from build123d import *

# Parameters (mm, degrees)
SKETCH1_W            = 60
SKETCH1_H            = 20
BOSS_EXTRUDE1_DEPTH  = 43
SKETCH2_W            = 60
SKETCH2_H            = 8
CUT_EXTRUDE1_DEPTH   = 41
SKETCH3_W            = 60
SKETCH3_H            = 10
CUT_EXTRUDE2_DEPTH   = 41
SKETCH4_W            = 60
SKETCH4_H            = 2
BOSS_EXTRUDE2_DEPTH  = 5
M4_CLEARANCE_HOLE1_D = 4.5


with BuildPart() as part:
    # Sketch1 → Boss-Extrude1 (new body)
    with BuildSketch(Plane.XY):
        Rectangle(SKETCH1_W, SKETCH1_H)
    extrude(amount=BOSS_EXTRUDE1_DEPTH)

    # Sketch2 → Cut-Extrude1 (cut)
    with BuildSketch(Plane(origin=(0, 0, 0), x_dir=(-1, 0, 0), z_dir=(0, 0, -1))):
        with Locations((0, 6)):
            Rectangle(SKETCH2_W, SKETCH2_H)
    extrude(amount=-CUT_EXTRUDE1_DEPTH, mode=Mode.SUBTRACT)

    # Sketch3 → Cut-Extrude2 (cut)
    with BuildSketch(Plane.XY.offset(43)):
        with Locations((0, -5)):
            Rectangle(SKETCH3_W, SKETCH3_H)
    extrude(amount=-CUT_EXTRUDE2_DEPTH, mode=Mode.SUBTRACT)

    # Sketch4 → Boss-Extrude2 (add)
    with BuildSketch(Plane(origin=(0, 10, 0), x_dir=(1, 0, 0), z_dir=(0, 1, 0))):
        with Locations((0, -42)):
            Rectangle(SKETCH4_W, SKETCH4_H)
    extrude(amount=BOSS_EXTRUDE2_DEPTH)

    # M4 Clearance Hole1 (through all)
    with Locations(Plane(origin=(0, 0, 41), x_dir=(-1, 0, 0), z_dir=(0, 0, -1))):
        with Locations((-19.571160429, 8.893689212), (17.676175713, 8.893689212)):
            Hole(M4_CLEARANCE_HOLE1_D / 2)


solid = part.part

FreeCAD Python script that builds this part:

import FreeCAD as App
import Part
import Sketcher
from FreeCAD import Vector
Q = App.Units.Quantity

doc = App.newDocument("Part")
body = doc.addObject("PartDesign::Body", "Body")

sketch1 = body.newObject("Sketcher::SketchObject", "Sketch")
sketch1.AttachmentSupport = (doc.getObject("XY_Plane"), [""])
sketch1.MapMode = "FlatFace"
sketch1.addGeometry([
    Part.LineSegment(Vector(-30, 10, 0), Vector(-30, -10, 0)),
    Part.LineSegment(Vector(-30, -10, 0), Vector(30, -10, 0)),
    Part.LineSegment(Vector(30, -10, 0), Vector(30, 10, 0)),
    Part.LineSegment(Vector(30, 10, 0), Vector(-30, 10, 0)),
], False)
sketch1.addConstraint([
    Sketcher.Constraint("Coincident", 0, 2, 1, 1),
    Sketcher.Constraint("Coincident", 1, 2, 2, 1),
    Sketcher.Constraint("Coincident", 2, 2, 3, 1),
    Sketcher.Constraint("Coincident", 3, 2, 0, 1),
    Sketcher.Constraint("Vertical", 0),
    Sketcher.Constraint("Horizontal", 1),
    Sketcher.Constraint("Vertical", 2),
    Sketcher.Constraint("Horizontal", 3),
    Sketcher.Constraint("Symmetric", 0, 2, 2, 2, -1, 1),
    Sketcher.Constraint("DistanceX", 1, 1, 1, 2, Q("60 mm")),
    Sketcher.Constraint("DistanceY", 0, 2, 0, 1, Q("20 mm")),
])
pad1 = body.newObject("PartDesign::Pad", "Pad")
pad1.Profile = sketch1
pad1.Length = 43

sketch2 = body.newObject("Sketcher::SketchObject", "Sketch001")
sketch2.AttachmentSupport = (doc.getObject("XY_Plane"), [""])
sketch2.MapMode = "FlatFace"
sketch2.addGeometry([
    Part.LineSegment(Vector(30, 10, 0), Vector(30, 2, 0)),
    Part.LineSegment(Vector(30, 2, 0), Vector(-30, 2, 0)),
    Part.LineSegment(Vector(-30, 2, 0), Vector(-30, 10, 0)),
    Part.LineSegment(Vector(-30, 10, 0), Vector(30, 10, 0)),
], False)
sketch2.addConstraint([
    Sketcher.Constraint("Coincident", 0, 2, 1, 1),
    Sketcher.Constraint("Coincident", 1, 2, 2, 1),
    Sketcher.Constraint("Coincident", 2, 2, 3, 1),
    Sketcher.Constraint("Coincident", 3, 2, 0, 1),
    Sketcher.Constraint("Vertical", 0),
    Sketcher.Constraint("Horizontal", 1),
    Sketcher.Constraint("Vertical", 2),
    Sketcher.Constraint("Horizontal", 3),
    Sketcher.Constraint("DistanceX", 1, 2, 1, 1, Q("60 mm")),
    Sketcher.Constraint("DistanceY", 0, 2, 0, 1, Q("8 mm")),
    Sketcher.Constraint("DistanceX", -1, 1, 0, 2, Q("30 mm")),
    Sketcher.Constraint("DistanceY", -1, 1, 0, 2, Q("2 mm")),
])
pocket1 = body.newObject("PartDesign::Pocket", "Pocket")
pocket1.Profile = sketch2
pocket1.Length = 41
pocket1.Reversed = True

sketch3 = body.newObject("Sketcher::SketchObject", "Sketch002")
sketch3.AttachmentSupport = (doc.getObject("XY_Plane"), [""])
sketch3.MapMode = "FlatFace"
sketch3.AttachmentOffset = App.Placement(Vector(0, 0, 43), App.Rotation())
sketch3.addGeometry([
    Part.LineSegment(Vector(-30, 0, 0), Vector(-30, -10, 0)),
    Part.LineSegment(Vector(-30, -10, 0), Vector(30, -10, 0)),
    Part.LineSegment(Vector(30, -10, 0), Vector(30, 0, 0)),
    Part.LineSegment(Vector(30, 0, 0), Vector(-30, 0, 0)),
], False)
sketch3.addConstraint([
    Sketcher.Constraint("Coincident", 0, 2, 1, 1),
    Sketcher.Constraint("Coincident", 1, 2, 2, 1),
    Sketcher.Constraint("Coincident", 2, 2, 3, 1),
    Sketcher.Constraint("Coincident", 3, 2, 0, 1),
    Sketcher.Constraint("Vertical", 0),
    Sketcher.Constraint("Horizontal", 1),
    Sketcher.Constraint("Vertical", 2),
    Sketcher.Constraint("Horizontal", 3),
    Sketcher.Constraint("Symmetric", 2, 2, 3, 2, -1, 1),
    Sketcher.Constraint("DistanceX", 1, 1, 1, 2, Q("60 mm")),
    Sketcher.Constraint("DistanceY", 0, 2, 0, 1, Q("10 mm")),
])
pocket2 = body.newObject("PartDesign::Pocket", "Pocket001")
pocket2.Profile = sketch3
pocket2.Length = 41

sketch4 = body.newObject("Sketcher::SketchObject", "Sketch003")
sketch4.AttachmentSupport = (doc.getObject("XZ_Plane"), [""])
sketch4.MapMode = "FlatFace"
sketch4.AttachmentOffset = App.Placement(Vector(0, 0, -10), App.Rotation())
sketch4.addGeometry([
    Part.LineSegment(Vector(-30, 41, 0), Vector(-30, 43, 0)),
    Part.LineSegment(Vector(-30, 43, 0), Vector(30, 43, 0)),
    Part.LineSegment(Vector(30, 43, 0), Vector(30, 41, 0)),
    Part.LineSegment(Vector(30, 41, 0), Vector(-30, 41, 0)),
], False)
sketch4.addConstraint([
    Sketcher.Constraint("Coincident", 0, 2, 1, 1),
    Sketcher.Constraint("Coincident", 1, 2, 2, 1),
    Sketcher.Constraint("Coincident", 2, 2, 3, 1),
    Sketcher.Constraint("Coincident", 3, 2, 0, 1),
    Sketcher.Constraint("Vertical", 0),
    Sketcher.Constraint("Horizontal", 1),
    Sketcher.Constraint("Vertical", 2),
    Sketcher.Constraint("Horizontal", 3),
    Sketcher.Constraint("DistanceX", 1, 1, 1, 2, Q("60 mm")),
    Sketcher.Constraint("DistanceY", 0, 1, 0, 2, Q("2 mm")),
    Sketcher.Constraint("DistanceX", 0, 2, -1, 1, Q("30 mm")),
    Sketcher.Constraint("DistanceY", -1, 1, 0, 2, Q("43 mm")),
])
pad2 = body.newObject("PartDesign::Pad", "Pad001")
pad2.Profile = sketch4
pad2.Length = 5
pad2.Reversed = True

sketch5 = body.newObject("Sketcher::SketchObject", "Sketch004")
sketch5.AttachmentSupport = (doc.getObject("XY_Plane"), [""])
sketch5.MapMode = "FlatFace"
sketch5.AttachmentOffset = App.Placement(Vector(0, 0, 41), App.Rotation())
sketch5.addGeometry([
    Part.Circle(Vector(19.57116, 8.893689, 0), Vector(0, 0, 1), 2.25),
    Part.Circle(Vector(-17.676176, 8.893689, 0), Vector(0, 0, 1), 2.25),
], False)
sketch5.addConstraint([
    Sketcher.Constraint("Equal", 0, 1),
    Sketcher.Constraint("Horizontal", 0, 3, 1, 3),
    Sketcher.Constraint("Diameter", 0, Q("4.5 mm")),
    Sketcher.Constraint("DistanceX", -1, 1, 0, 3, Q("19.57116 mm")),
    Sketcher.Constraint("DistanceY", -1, 1, 0, 3, Q("8.893689 mm")),
    Sketcher.Constraint("DistanceX", 1, 3, -1, 1, Q("17.676176 mm")),
])
doc.recompute()
hole = body.newObject("PartDesign::Hole", "Hole")
hole.Profile = sketch5
hole.ThreadType = "None"
hole.Diameter = 4.5
hole.DepthType = "ThroughAll"
hole.Reversed = True

doc.recompute()
